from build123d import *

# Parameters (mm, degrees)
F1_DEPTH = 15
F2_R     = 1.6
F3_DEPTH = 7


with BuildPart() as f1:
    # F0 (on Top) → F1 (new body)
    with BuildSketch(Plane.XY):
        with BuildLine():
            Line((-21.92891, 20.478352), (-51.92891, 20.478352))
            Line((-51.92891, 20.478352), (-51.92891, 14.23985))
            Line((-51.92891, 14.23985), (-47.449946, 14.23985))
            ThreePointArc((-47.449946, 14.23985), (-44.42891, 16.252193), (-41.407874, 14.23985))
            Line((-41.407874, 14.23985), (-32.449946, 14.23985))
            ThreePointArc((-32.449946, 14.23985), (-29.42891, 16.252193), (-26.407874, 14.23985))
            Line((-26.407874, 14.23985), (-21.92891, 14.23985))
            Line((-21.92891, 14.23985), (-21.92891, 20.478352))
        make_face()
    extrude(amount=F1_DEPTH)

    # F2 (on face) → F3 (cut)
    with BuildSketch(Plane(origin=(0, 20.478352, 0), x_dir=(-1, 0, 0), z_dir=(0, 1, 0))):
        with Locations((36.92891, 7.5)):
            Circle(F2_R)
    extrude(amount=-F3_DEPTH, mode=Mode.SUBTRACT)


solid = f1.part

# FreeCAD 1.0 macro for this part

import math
import FreeCAD as App
import Part
import Sketcher

V = App.Vector
Q = App.Units.Quantity

doc = App.newDocument("Part")
body = doc.addObject("PartDesign::Body", "Body")

# Sketch on XY plane
sketch1 = body.newObject("Sketcher::SketchObject", "Sketch")
sketch1.AttachmentSupport = (doc.getObject("XY_Plane"), [""])
sketch1.MapMode = "FlatFace"
sketch1.addGeometry(Part.LineSegment(V(-21.92891, 20.478352, 0), V(-51.92891, 20.478352, 0)), False)
sketch1.addGeometry(Part.LineSegment(V(-51.92891, 20.478352, 0), V(-51.92891, 14.23985, 0)), False)
sketch1.addGeometry(Part.LineSegment(V(-51.92891, 14.23985, 0), V(-47.449946, 14.23985, 0)), False)
sketch1.addGeometry(Part.ArcOfCircle(Part.Circle(V(-44.42891, 12.978352, 0), V(0, 0, 1), 3.273841), math.radians(22.664019), math.radians(157.335981)), False)
sketch1.addGeometry(Part.LineSegment(V(-41.407874, 14.23985, 0), V(-32.449946, 14.23985, 0)), False)
sketch1.addGeometry(Part.ArcOfCircle(Part.Circle(V(-29.42891, 12.978352, 0), V(0, 0, 1), 3.273841), math.radians(22.664019), math.radians(157.335981)), False)
sketch1.addGeometry(Part.LineSegment(V(-26.407874, 14.23985, 0), V(-21.92891, 14.23985, 0)), False)
sketch1.addGeometry(Part.LineSegment(V(-21.92891, 14.23985, 0), V(-21.92891, 20.478352, 0)), False)
sketch1.addConstraint(Sketcher.Constraint("Coincident", 0, 2, 1, 1))
sketch1.addConstraint(Sketcher.Constraint("Coincident", 1, 2, 2, 1))
sketch1.addConstraint(Sketcher.Constraint("Coincident", 2, 2, 3, 2))
sketch1.addConstraint(Sketcher.Constraint("Coincident", 3, 1, 4, 1))
sketch1.addConstraint(Sketcher.Constraint("Coincident", 4, 2, 5, 2))
sketch1.addConstraint(Sketcher.Constraint("Coincident", 5, 1, 6, 1))
sketch1.addConstraint(Sketcher.Constraint("Coincident", 6, 2, 7, 1))
sketch1.addConstraint(Sketcher.Constraint("Coincident", 7, 2, 0, 1))
sketch1.addConstraint(Sketcher.Constraint("Horizontal", 0))
sketch1.addConstraint(Sketcher.Constraint("Vertical", 1))
sketch1.addConstraint(Sketcher.Constraint("Horizontal", 2))
sketch1.addConstraint(Sketcher.Constraint("Horizontal", 4))
sketch1.addConstraint(Sketcher.Constraint("Horizontal", 6))
sketch1.addConstraint(Sketcher.Constraint("Vertical", 7))
sketch1.addConstraint(Sketcher.Constraint("Equal", 3, 5))
sketch1.addConstraint(Sketcher.Constraint("Horizontal", 3, 3, 5, 3))
sketch1.addConstraint(Sketcher.Constraint("Horizontal", 2, 2, 3, 1))
sketch1.addConstraint(Sketcher.Constraint("Horizontal", 4, 2, 5, 1))
sketch1.addConstraint(Sketcher.Constraint("Equal", 2, 6))
sketch1.addConstraint(Sketcher.Constraint("DistanceX", 0, 2, 0, 1, Q("30 mm")))
sketch1.addConstraint(Sketcher.Constraint("DistanceX", 3, 3, 5, 3, Q("15 mm")))
sketch1.addConstraint(Sketcher.Constraint("DistanceY", 3, 3, 0, 2, Q("7.5 mm")))
sketch1.addConstraint(Sketcher.Constraint("Radius", 3, Q("3.273841 mm")))
sketch1.addConstraint(Sketcher.Constraint("DistanceX", 4, 1, 4, 2, Q("8.957928 mm")))
sketch1.addConstraint(Sketcher.Constraint("DistanceX", 3, 3, -1, 1, Q("44.42891 mm")))
sketch1.addConstraint(Sketcher.Constraint("DistanceY", -1, 1, 3, 3, Q("12.978352 mm")))
pad1 = body.newObject("PartDesign::Pad", "Pad")
pad1.Profile = sketch1
pad1.Length = 15

# Sketch on XZ plane
sketch2 = body.newObject("Sketcher::SketchObject", "Sketch001")
sketch2.AttachmentSupport = (doc.getObject("XZ_Plane"), [""])
sketch2.MapMode = "FlatFace"
sketch2.AttachmentOffset = App.Placement(V(0, 0, -20.478352), App.Rotation())
sketch2.addGeometry(Part.Circle(V(-36.92891, 7.5, 0), V(0, 0, 1), 1.6), False)
sketch2.addConstraint(Sketcher.Constraint("Diameter", 0, Q("3.2 mm")))
sketch2.addConstraint(Sketcher.Constraint("DistanceY", -1, 1, 0, 3, Q("7.5 mm")))
sketch2.addConstraint(Sketcher.Constraint("DistanceX", 0, 3, -1, 1, Q("36.92891 mm")))
pocket1 = body.newObject("PartDesign::Pocket", "Pocket")
pocket1.Profile = sketch2
pocket1.Length = 7
pocket1.Reversed = True

doc.recompute()
